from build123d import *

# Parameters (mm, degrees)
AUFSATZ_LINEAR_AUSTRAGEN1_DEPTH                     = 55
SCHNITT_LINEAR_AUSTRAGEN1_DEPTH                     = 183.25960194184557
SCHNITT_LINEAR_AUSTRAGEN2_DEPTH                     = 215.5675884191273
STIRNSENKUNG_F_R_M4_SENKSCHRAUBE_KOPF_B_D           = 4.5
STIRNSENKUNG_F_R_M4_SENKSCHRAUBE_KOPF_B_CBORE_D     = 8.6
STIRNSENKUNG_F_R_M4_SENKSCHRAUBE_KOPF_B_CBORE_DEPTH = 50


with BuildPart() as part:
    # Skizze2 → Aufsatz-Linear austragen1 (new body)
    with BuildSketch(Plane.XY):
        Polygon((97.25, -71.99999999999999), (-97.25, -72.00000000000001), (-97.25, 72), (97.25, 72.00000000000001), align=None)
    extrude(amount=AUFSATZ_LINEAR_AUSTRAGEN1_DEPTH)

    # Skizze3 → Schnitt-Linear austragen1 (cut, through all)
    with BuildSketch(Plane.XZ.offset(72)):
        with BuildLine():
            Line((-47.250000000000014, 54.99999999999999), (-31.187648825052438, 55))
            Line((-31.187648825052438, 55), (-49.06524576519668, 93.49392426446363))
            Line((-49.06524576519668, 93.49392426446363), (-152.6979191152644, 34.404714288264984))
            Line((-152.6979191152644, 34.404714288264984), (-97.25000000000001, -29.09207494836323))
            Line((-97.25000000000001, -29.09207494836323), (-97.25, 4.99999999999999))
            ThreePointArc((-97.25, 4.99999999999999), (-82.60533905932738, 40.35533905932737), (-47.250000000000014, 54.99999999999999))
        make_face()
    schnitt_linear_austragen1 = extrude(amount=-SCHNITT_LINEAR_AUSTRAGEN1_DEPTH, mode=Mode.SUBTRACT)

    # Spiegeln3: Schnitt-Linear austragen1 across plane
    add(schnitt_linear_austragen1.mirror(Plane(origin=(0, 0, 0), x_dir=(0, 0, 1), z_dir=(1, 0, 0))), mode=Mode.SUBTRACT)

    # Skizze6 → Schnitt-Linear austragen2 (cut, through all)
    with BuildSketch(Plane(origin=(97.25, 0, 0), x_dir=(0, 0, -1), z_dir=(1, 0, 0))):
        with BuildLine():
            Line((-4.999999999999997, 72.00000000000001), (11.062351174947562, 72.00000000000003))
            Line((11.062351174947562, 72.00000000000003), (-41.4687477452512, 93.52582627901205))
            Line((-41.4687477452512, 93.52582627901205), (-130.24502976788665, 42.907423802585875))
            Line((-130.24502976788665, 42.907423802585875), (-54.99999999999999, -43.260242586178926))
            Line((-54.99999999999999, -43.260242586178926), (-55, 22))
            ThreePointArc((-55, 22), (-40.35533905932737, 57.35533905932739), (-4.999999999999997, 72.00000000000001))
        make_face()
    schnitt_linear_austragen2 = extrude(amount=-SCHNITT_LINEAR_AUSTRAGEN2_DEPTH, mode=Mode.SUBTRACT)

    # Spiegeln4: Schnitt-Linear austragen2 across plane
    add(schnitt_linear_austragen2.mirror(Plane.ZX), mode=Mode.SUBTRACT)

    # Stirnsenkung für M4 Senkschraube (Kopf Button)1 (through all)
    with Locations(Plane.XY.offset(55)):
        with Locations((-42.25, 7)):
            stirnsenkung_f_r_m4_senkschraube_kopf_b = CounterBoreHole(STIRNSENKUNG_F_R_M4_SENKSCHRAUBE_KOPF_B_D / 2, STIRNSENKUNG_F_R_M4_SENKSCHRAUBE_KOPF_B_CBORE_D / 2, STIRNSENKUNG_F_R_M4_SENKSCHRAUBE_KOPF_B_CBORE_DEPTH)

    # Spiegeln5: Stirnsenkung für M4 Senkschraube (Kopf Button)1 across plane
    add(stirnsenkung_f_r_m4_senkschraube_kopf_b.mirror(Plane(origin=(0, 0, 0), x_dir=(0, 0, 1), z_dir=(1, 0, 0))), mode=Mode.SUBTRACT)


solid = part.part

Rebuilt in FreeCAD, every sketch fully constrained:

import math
import FreeCAD as App
import Part
import Sketcher
Q = App.Units.Quantity


def add_polygon(sketch, points):
    """Adds a closed chain of lines whose ends are joined by coincident constraints."""
    first, n = sketch.GeometryCount, len(points)
    for a, b in zip(points, points[1:] + points[:1]):
        sketch.addGeometry(Part.LineSegment(App.Vector(*a, 0), App.Vector(*b, 0)), False)
    for i in range(n):
        sketch.addConstraint(Sketcher.Constraint("Coincident", first + i, 2, first + (i + 1) % n, 1))

doc = App.newDocument("Part")
body = doc.addObject("PartDesign::Body", "Body")

# Sketch on XY plane
sketch1 = doc.addObject("Sketcher::SketchObject", "Sketch")
body.addObject(sketch1)
sketch1.AttachmentSupport = (doc.XY_Plane, [""])
sketch1.MapMode = "FlatFace"
add_polygon(sketch1, [(-97.25, -72), (97.25, -72), (97.25, 72), (-97.25, 72)])  # lines 0-3
sketch1.addConstraint(Sketcher.Constraint("Horizontal", 0))
sketch1.addConstraint(Sketcher.Constraint("Vertical", 1))
sketch1.addConstraint(Sketcher.Constraint("Horizontal", 2))
sketch1.addConstraint(Sketcher.Constraint("Vertical", 3))
sketch1.addConstraint(Sketcher.Constraint("Symmetric", 0, 2, 2, 2, -1, 1))
sketch1.addConstraint(Sketcher.Constraint("DistanceY", 1, 1, 1, 2, Q("144 mm")))
sketch1.addConstraint(Sketcher.Constraint("DistanceX", 0, 1, 0, 2, Q("194.5 mm")))
pad1 = doc.addObject("PartDesign::Pad", "Pad")
body.addObject(pad1)
pad1.Profile = sketch1
pad1.Length = 55

# Sketch on XZ plane
sketch2 = doc.addObject("Sketcher::SketchObject", "Sketch001")
body.addObject(sketch2)
sketch2.AttachmentSupport = (doc.XZ_Plane, [""])
sketch2.MapMode = "FlatFace"
sketch2.AttachmentOffset = App.Placement(App.Vector(0, 0, 72), App.Rotation())
sketch2.addGeometry(Part.LineSegment(App.Vector(-47.25, 55, 0), App.Vector(-31.187649, 55, 0)), False)
sketch2.addGeometry(Part.LineSegment(App.Vector(-31.187649, 55, 0), App.Vector(-49.065246, 93.493924, 0)), False)
sketch2.addGeometry(Part.LineSegment(App.Vector(-49.065246, 93.493924, 0), App.Vector(-152.697919, 34.404714, 0)), False)
sketch2.addGeometry(Part.LineSegment(App.Vector(-152.697919, 34.404714, 0), App.Vector(-97.25, -29.092075, 0)), False)
sketch2.addGeometry(Part.LineSegment(App.Vector(-97.25, -29.092075, 0), App.Vector(-97.25, 5, 0)), False)
sketch2.addGeometry(Part.ArcOfCircle(Part.Circle(App.Vector(-47.25, 5, 0), App.Vector(0, 0, 1), 50), math.radians(90), math.radians(180)), False)
sketch2.addConstraint(Sketcher.Constraint("Coincident", 0, 2, 1, 1))
sketch2.addConstraint(Sketcher.Constraint("Coincident", 1, 2, 2, 1))
sketch2.addConstraint(Sketcher.Constraint("Coincident", 2, 2, 3, 1))
sketch2.addConstraint(Sketcher.Constraint("Coincident", 3, 2, 4, 1))
sketch2.addConstraint(Sketcher.Constraint("Tangent", 4, 2, 5, 2))
sketch2.addConstraint(Sketcher.Constraint("Tangent", 5, 1, 0, 1))
sketch2.addConstraint(Sketcher.Constraint("Horizontal", 0))
sketch2.addConstraint(Sketcher.Constraint("Vertical", 4))
sketch2.addConstraint(Sketcher.Constraint("Radius", 5, Q("50 mm")))
sketch2.addConstraint(Sketcher.Constraint("DistanceY", -1, 1, 5, 3, Q("5 mm")))
sketch2.addConstraint(Sketcher.Constraint("DistanceX", 5, 3, -1, 1, Q("47.25 mm")))
sketch2.addConstraint(Sketcher.Constraint("DistanceY", 3, 2, 1, 2, Q("122.585999 mm")))
sketch2.addConstraint(Sketcher.Constraint("DistanceX", 0, 1, 0, 2, Q("16.062351 mm")))
sketch2.addConstraint(Sketcher.Constraint("Distance", 2, Q("119.294869 mm")))
sketch2.addConstraint(Sketcher.Constraint("DistanceY", 4, 1, 4, 2, Q("34.092075 mm")))
sketch2.addConstraint(Sketcher.Constraint("DistanceX", 2, 2, -1, 1, Q("152.697919 mm")))
sketch2.addConstraint(Sketcher.Constraint("DistanceY", 2, 2, 1, 2, Q("59.08921 mm")))
pocket1 = doc.addObject("PartDesign::Pocket", "Pocket")
body.addObject(pocket1)
pocket1.Profile = sketch2
pocket1.Type = "ThroughAll"
doc.recompute()

mirrored = doc.addObject("PartDesign::Mirrored", "Mirrored")
body.addObject(mirrored)
mirrored.Originals = [pocket1]
mirrored.MirrorPlane = (doc.YZ_Plane, [""])
body.Tip = mirrored

# Sketch on YZ plane
sketch3 = doc.addObject("Sketcher::SketchObject", "Sketch002")
body.addObject(sketch3)
sketch3.AttachmentSupport = (doc.YZ_Plane, [""])
sketch3.MapMode = "FlatFace"
sketch3.AttachmentOffset = App.Placement(App.Vector(0, 0, 97.25), App.Rotation())
sketch3.addGeometry(Part.LineSegment(App.Vector(72, 5, 0), App.Vector(72, -11.062351, 0)), False)
sketch3.addGeometry(Part.LineSegment(App.Vector(72, -11.062351, 0), App.Vector(93.525826, 41.468748, 0)), False)
sketch3.addGeometry(Part.LineSegment(App.Vector(93.525826, 41.468748, 0), App.Vector(42.907424, 130.24503, 0)), False)
sketch3.addGeometry(Part.LineSegment(App.Vector(42.907424, 130.24503, 0), App.Vector(-43.260243, 55, 0)), False)
sketch3.addGeometry(Part.LineSegment(App.Vector(-43.260243, 55, 0), App.Vector(22, 55, 0)), False)
sketch3.addGeometry(Part.ArcOfCircle(Part.Circle(App.Vector(22, 5, 0), App.Vector(0, 0, 1), 50), math.radians(0), math.radians(90)), False)
sketch3.addConstraint(Sketcher.Constraint("Coincident", 0, 2, 1, 1))
sketch3.addConstraint(Sketcher.Constraint("Coincident", 1, 2, 2, 1))
sketch3.addConstraint(Sketcher.Constraint("Coincident", 2, 2, 3, 1))
sketch3.addConstraint(Sketcher.Constraint("Coincident", 3, 2, 4, 1))
sketch3.addConstraint(Sketcher.Constraint("Tangent", 4, 2, 5, 2))
sketch3.addConstraint(Sketcher.Constraint("Tangent", 5, 1, 0, 1))
sketch3.addConstraint(Sketcher.Constraint("Vertical", 0))
sketch3.addConstraint(Sketcher.Constraint("Horizontal", 4))
sketch3.addConstraint(Sketcher.Constraint("Radius", 5, Q("50 mm")))
sketch3.addConstraint(Sketcher.Constraint("DistanceX", -1, 1, 5, 3, Q("22 mm")))
sketch3.addConstraint(Sketcher.Constraint("DistanceY", -1, 1, 5, 3, Q("5 mm")))
sketch3.addConstraint(Sketcher.Constraint("DistanceY", 0, 2, 0, 1, Q("16.062351 mm")))
sketch3.addConstraint(Sketcher.Constraint("DistanceY", 0, 2, 1, 2, Q("52.531099 mm")))
sketch3.addConstraint(Sketcher.Constraint("DistanceX", 4, 1, 4, 2, Q("65.260243 mm")))
sketch3.addConstraint(Sketcher.Constraint("DistanceY", -1, 1, 2, 2, Q("130.24503 mm")))
sketch3.addConstraint(Sketcher.Constraint("DistanceX", 3, 2, 1, 2, Q("136.786069 mm")))
sketch3.addConstraint(Sketcher.Constraint("Distance", 2, Q("102.193204 mm")))
pocket2 = doc.addObject("PartDesign::Pocket", "Pocket001")
body.addObject(pocket2)
pocket2.Profile = sketch3
pocket2.Type = "ThroughAll"
doc.recompute()

mirrored2 = doc.addObject("PartDesign::Mirrored", "Mirrored001")
body.addObject(mirrored2)
mirrored2.Originals = [pocket2]
mirrored2.MirrorPlane = (doc.XZ_Plane, [""])
body.Tip = mirrored2

# Sketch on XY plane
sketch4 = doc.addObject("Sketcher::SketchObject", "Sketch003")
body.addObject(sketch4)
sketch4.AttachmentSupport = (doc.XY_Plane, [""])
sketch4.MapMode = "FlatFace"
sketch4.AttachmentOffset = App.Placement(App.Vector(0, 0, 55), App.Rotation())
sketch4.addGeometry(Part.Circle(App.Vector(-42.25, 7, 0), App.Vector(0, 0, 1), 2.25), False)
sketch4.addConstraint(Sketcher.Constraint("Diameter", 0, Q("4.5 mm")))
sketch4.addConstraint(Sketcher.Constraint("DistanceY", -1, 1, 0, 3, Q("7 mm")))
sketch4.addConstraint(Sketcher.Constraint("DistanceX", 0, 3, -1, 1, Q("42.25 mm")))
doc.recompute()
hole = doc.addObject("PartDesign::Hole", "Hole")
body.addObject(hole)
hole.Profile = sketch4
hole.ThreadType = "None"
hole.Diameter = 4.5
hole.DepthType = "ThroughAll"
hole.HoleCutType = "Counterbore"
hole.HoleCutDiameter = 8.6
hole.HoleCutDepth = 50
doc.recompute()

mirrored3 = doc.addObject("PartDesign::Mirrored", "Mirrored002")
body.addObject(mirrored3)
mirrored3.Originals = [hole]
mirrored3.MirrorPlane = (doc.YZ_Plane, [""])
body.Tip = mirrored3

doc.recompute()
